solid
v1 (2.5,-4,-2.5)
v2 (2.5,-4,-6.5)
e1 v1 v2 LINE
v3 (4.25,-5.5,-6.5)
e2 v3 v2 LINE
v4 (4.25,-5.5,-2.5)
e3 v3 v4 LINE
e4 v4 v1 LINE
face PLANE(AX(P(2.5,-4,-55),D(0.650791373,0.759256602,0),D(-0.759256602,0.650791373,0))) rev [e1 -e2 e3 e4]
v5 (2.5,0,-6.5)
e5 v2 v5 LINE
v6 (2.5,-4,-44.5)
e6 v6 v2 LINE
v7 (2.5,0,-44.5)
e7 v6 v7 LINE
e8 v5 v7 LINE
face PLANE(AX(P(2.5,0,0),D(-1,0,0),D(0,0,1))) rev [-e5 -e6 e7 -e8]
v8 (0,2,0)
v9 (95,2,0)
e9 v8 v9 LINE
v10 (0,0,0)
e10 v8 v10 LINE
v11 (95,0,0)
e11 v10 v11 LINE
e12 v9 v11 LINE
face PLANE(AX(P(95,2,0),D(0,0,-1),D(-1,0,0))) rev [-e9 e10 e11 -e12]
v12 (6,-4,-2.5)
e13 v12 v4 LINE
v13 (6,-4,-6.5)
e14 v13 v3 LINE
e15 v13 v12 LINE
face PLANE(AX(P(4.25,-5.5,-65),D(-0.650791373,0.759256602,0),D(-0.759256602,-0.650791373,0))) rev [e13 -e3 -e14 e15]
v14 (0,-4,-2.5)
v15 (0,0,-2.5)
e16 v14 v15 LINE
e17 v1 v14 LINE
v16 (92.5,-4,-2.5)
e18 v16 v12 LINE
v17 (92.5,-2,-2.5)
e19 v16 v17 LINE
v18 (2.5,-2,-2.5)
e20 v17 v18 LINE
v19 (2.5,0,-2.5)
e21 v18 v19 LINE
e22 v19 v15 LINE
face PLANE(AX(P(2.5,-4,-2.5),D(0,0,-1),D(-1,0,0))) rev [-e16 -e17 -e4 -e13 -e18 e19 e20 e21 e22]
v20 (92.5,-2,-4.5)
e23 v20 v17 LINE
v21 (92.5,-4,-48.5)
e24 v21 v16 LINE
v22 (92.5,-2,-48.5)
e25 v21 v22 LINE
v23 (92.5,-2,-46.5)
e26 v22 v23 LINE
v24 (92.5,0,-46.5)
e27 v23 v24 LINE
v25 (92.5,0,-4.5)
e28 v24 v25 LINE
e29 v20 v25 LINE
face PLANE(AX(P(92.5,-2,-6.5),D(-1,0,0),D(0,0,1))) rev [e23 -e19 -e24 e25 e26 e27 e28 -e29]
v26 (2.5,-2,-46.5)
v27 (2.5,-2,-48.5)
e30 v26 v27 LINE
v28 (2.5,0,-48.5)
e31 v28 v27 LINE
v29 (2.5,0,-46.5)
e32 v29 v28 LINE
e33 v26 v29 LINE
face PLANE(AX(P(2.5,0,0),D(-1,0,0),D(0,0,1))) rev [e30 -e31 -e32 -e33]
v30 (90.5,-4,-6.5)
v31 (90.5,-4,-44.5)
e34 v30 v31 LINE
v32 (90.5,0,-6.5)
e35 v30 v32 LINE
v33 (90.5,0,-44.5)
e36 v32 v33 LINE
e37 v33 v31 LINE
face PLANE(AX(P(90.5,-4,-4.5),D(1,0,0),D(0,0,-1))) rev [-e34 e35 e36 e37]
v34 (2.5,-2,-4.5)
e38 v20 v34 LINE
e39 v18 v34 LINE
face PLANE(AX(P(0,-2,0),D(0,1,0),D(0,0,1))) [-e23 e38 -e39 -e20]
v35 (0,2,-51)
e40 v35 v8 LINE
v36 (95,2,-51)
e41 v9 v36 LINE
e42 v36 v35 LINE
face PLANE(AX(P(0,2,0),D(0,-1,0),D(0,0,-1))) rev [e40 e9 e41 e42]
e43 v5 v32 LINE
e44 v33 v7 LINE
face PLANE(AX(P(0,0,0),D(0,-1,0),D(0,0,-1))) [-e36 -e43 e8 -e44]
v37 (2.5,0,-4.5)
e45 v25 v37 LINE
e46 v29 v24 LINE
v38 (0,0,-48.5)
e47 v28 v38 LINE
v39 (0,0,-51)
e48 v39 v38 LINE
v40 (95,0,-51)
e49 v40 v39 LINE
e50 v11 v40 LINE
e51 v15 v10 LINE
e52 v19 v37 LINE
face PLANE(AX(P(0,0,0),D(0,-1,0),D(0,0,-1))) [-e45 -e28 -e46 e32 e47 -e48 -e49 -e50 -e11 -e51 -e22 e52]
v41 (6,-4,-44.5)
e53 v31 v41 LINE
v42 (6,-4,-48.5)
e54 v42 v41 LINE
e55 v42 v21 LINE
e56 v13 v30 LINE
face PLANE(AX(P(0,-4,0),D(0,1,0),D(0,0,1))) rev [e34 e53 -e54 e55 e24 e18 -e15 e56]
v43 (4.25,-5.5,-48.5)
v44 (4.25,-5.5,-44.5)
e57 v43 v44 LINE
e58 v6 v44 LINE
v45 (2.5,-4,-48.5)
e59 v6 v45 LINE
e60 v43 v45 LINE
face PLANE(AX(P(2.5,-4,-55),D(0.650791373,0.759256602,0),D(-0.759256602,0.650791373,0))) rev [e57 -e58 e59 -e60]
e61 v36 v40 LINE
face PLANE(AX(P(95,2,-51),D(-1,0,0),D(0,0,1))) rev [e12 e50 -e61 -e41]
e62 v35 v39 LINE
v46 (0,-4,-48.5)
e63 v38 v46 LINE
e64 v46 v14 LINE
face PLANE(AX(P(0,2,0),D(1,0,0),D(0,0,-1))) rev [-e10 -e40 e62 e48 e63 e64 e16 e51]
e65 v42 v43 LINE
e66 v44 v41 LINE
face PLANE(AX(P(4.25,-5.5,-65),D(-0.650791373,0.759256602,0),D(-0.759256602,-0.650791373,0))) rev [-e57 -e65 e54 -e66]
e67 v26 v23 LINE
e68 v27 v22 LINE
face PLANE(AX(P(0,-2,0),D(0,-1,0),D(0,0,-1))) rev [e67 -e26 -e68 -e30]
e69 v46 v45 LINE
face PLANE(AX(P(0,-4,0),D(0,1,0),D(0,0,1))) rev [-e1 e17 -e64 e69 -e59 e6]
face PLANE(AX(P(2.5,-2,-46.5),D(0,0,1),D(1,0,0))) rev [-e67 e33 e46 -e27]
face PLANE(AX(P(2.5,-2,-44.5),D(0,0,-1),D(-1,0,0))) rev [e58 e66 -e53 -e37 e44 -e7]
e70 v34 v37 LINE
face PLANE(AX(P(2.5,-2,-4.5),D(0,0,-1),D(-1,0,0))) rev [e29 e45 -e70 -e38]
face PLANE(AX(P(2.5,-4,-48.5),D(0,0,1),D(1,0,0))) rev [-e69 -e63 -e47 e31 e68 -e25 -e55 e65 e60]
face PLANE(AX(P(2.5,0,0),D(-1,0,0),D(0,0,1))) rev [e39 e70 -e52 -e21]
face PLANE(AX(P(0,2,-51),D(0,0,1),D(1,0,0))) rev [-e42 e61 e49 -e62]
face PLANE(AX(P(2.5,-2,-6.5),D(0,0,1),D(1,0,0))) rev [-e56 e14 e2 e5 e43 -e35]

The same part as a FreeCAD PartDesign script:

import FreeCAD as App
import Part
import Sketcher
from FreeCAD import Vector

doc = App.newDocument("Part")
body = doc.addObject("PartDesign::Body", "Body")

sketch1 = body.newObject("Sketcher::SketchObject", "Sketch")
sketch1.AttachmentSupport = (doc.getObject("XZ_Plane"), [""])
sketch1.MapMode = "FlatFace"
sketch1.addGeometry([
    Part.LineSegment(Vector(0, -51, 0), Vector(0, 0, 0)),
    Part.LineSegment(Vector(0, 0, 0), Vector(95, 0, 0)),
    Part.LineSegment(Vector(95, 0, 0), Vector(95, -51, 0)),
    Part.LineSegment(Vector(95, -51, 0), Vector(0, -51, 0)),
], False)
sketch1.addConstraint([
    Sketcher.Constraint("Coincident", 0, 2, 1, 1),
    Sketcher.Constraint("Coincident", 1, 2, 2, 1),
    Sketcher.Constraint("Coincident", 2, 2, 3, 1),
    Sketcher.Constraint("Coincident", 3, 2, 0, 1),
    Sketcher.Constraint("Vertical", 0),
    Sketcher.Constraint("Horizontal", 1),
    Sketcher.Constraint("Vertical", 2),
    Sketcher.Constraint("Horizontal", 3),
    Sketcher.Constraint("Coincident", 0, 2, -1, 1),
    Sketcher.Constraint("DistanceX", 1, 1, 1, 2, 95.0),
    Sketcher.Constraint("DistanceY", 0, 1, 0, 2, 51.0),
])
pad1 = body.newObject("PartDesign::Pad", "Pad")
pad1.Profile = sketch1
pad1.Length = 2
pad1.Reversed = True

sketch2 = body.newObject("Sketcher::SketchObject", "Sketch001")
sketch2.AttachmentSupport = (doc.getObject("XZ_Plane"), [""])
sketch2.MapMode = "FlatFace"
sketch2.addGeometry([
    Part.LineSegment(Vector(92.5, -6.5, 0), Vector(92.5, -4.5, 0)),
    Part.LineSegment(Vector(92.5, -4.5, 0), Vector(2.5, -4.5, 0)),
    Part.LineSegment(Vector(2.5, -4.5, 0), Vector(2.5, -6.5, 0)),
    Part.LineSegment(Vector(2.5, -6.5, 0), Vector(92.5, -6.5, 0)),
], False)
sketch2.addConstraint([
    Sketcher.Constraint("Coincident", 0, 2, 1, 1),
    Sketcher.Constraint("Coincident", 1, 2, 2, 1),
    Sketcher.Constraint("Coincident", 2, 2, 3, 1),
    Sketcher.Constraint("Coincident", 3, 2, 0, 1),
    Sketcher.Constraint("Vertical", 0),
    Sketcher.Constraint("Horizontal", 1),
    Sketcher.Constraint("Vertical", 2),
    Sketcher.Constraint("Horizontal", 3),
    Sketcher.Constraint("DistanceX", 1, 2, 1, 1, 90.0),
    Sketcher.Constraint("DistanceY", 0, 1, 0, 2, 2.0),
    Sketcher.Constraint("DistanceX", -1, 1, 0, 2, 92.5),
    Sketcher.Constraint("DistanceY", 0, 2, -1, 1, 4.5),
])
pad2 = body.newObject("PartDesign::Pad", "Pad001")
pad2.Profile = sketch2
pad2.Length = 2

sketch3 = body.newObject("Sketcher::SketchObject", "Sketch002")
sketch3.AttachmentSupport = (doc.getObject("XZ_Plane"), [""])
sketch3.MapMode = "FlatFace"
sketch3.addGeometry([
    Part.LineSegment(Vector(2.5, -44.5, 0), Vector(2.5, -46.5, 0)),
    Part.LineSegment(Vector(2.5, -46.5, 0), Vector(92.5, -46.5, 0)),
    Part.LineSegment(Vector(92.5, -46.5, 0), Vector(92.5, -44.5, 0)),
    Part.LineSegment(Vector(92.5, -44.5, 0), Vector(2.5, -44.5, 0)),
], False)
sketch3.addConstraint([
    Sketcher.Constraint("Coincident", 0, 2, 1, 1),
    Sketcher.Constraint("Coincident", 1, 2, 2, 1),
    Sketcher.Constraint("Coincident", 2, 2, 3, 1),
    Sketcher.Constraint("Coincident", 3, 2, 0, 1),
    Sketcher.Constraint("Vertical", 0),
    Sketcher.Constraint("Horizontal", 1),
    Sketcher.Constraint("Vertical", 2),
    Sketcher.Constraint("Horizontal", 3),
    Sketcher.Constraint("DistanceX", 1, 1, 1, 2, 90.0),
    Sketcher.Constraint("DistanceY", 0, 2, 0, 1, 2.0),
    Sketcher.Constraint("DistanceX", -1, 1, 0, 2, 2.5),
    Sketcher.Constraint("DistanceY", 0, 2, -1, 1, 46.5),
])
pad3 = body.newObject("PartDesign::Pad", "Pad002")
pad3.Profile = sketch3
pad3.Length = 2

sketch4 = body.newObject("Sketcher::SketchObject", "Sketch003")
sketch4.AttachmentSupport = (doc.getObject("XZ_Plane"), [""])
sketch4.MapMode = "FlatFace"
sketch4.addGeometry([
    Part.LineSegment(Vector(90.5, -4.5, 0), Vector(90.5, -46.5, 0)),
    Part.LineSegment(Vector(90.5, -46.5, 0), Vector(92.5, -46.5, 0)),
    Part.LineSegment(Vector(92.5, -46.5, 0), Vector(92.5, -4.5, 0)),
    Part.LineSegment(Vector(92.5, -4.5, 0), Vector(90.5, -4.5, 0)),
], False)
sketch4.addConstraint([
    Sketcher.Constraint("Coincident", 0, 2, 1, 1),
    Sketcher.Constraint("Coincident", 1, 2, 2, 1),
    Sketcher.Constraint("Coincident", 2, 2, 3, 1),
    Sketcher.Constraint("Coincident", 3, 2, 0, 1),
    Sketcher.Constraint("Vertical", 0),
    Sketcher.Constraint("Horizontal", 1),
    Sketcher.Constraint("Vertical", 2),
    Sketcher.Constraint("Horizontal", 3),
    Sketcher.Constraint("DistanceX", 1, 1, 1, 2, 2.0),
    Sketcher.Constraint("DistanceY", 0, 2, 0, 1, 42.0),
    Sketcher.Constraint("DistanceX", -1, 1, 0, 2, 90.5),
    Sketcher.Constraint("DistanceY", 0, 2, -1, 1, 46.5),
])
pad4 = body.newObject("PartDesign::Pad", "Pad003")
pad4.Profile = sketch4
pad4.Length = 4

sketch5 = body.newObject("Sketcher::SketchObject", "Sketch004")
sketch5.AttachmentSupport = (doc.getObject("XZ_Plane"), [""])
sketch5.MapMode = "FlatFace"
sketch5.AttachmentOffset = App.Placement(Vector(0, 0, 2), App.Rotation())
sketch5.addGeometry([
    Part.LineSegment(Vector(92.5, -6.5, 0), Vector(92.5, -2.5, 0)),
    Part.LineSegment(Vector(92.5, -2.5, 0), Vector(2.5, -2.5, 0)),
    Part.LineSegment(Vector(2.5, -2.5, 0), Vector(2.5, -6.5, 0)),
    Part.LineSegment(Vector(2.5, -6.5, 0), Vector(92.5, -6.5, 0)),
    Part.LineSegment(Vector(92.5, -48.5, 0), Vector(92.5, -44.5, 0)),
    Part.LineSegment(Vector(92.5, -44.5, 0), Vector(2.5, -44.5, 0)),
    Part.LineSegment(Vector(2.5, -44.5, 0), Vector(2.5, -48.5, 0)),
    Part.LineSegment(Vector(2.5, -48.5, 0), Vector(92.5, -48.5, 0)),
], False)
sketch5.addConstraint([
    Sketcher.Constraint("Coincident", 0, 2, 1, 1),
    Sketcher.Constraint("Coincident", 1, 2, 2, 1),
    Sketcher.Constraint("Coincident", 2, 2, 3, 1),
    Sketcher.Constraint("Coincident", 3, 2, 0, 1),
    Sketcher.Constraint("Coincident", 4, 2, 5, 1),
    Sketcher.Constraint("Coincident", 5, 2, 6, 1),
    Sketcher.Constraint("Coincident", 6, 2, 7, 1),
    Sketcher.Constraint("Coincident", 7, 2, 4, 1),
    Sketcher.Constraint("Vertical", 0),
    Sketcher.Constraint("Horizontal", 1),
    Sketcher.Constraint("Vertical", 2),
    Sketcher.Constraint("Horizontal", 3),
    Sketcher.Constraint("Vertical", 4),
    Sketcher.Constraint("Horizontal", 5),
    Sketcher.Constraint("Vertical", 6),
    Sketcher.Constraint("Horizontal", 7),
    Sketcher.Constraint("Vertical", 3, 2, 4, 2),
    Sketcher.Constraint("Vertical", 2, 2, 5, 2),
    Sketcher.Constraint("Equal", 2, 4),
    Sketcher.Constraint("DistanceX", 1, 2, 1, 1, 90.0),
    Sketcher.Constraint("DistanceY", 0, 1, 0, 2, 4.0),
    Sketcher.Constraint("DistanceY", 4, 2, 3, 2, 38.0),
    Sketcher.Constraint("DistanceX", -1, 1, 0, 2, 92.5),
    Sketcher.Constraint("DistanceY", 0, 2, -1, 1, 2.5),
])
pad5 = body.newObject("PartDesign::Pad", "Pad004")
pad5.Profile = sketch5
pad5.Length = 2

sketch6 = body.newObject("Sketcher::SketchObject", "Sketch005")
sketch6.AttachmentSupport = (doc.getObject("YZ_Plane"), [""])
sketch6.MapMode = "FlatFace"
sketch6.addGeometry([
    Part.LineSegment(Vector(0, -48.5, 0), Vector(-4, -48.5, 0)),
    Part.LineSegment(Vector(-4, -48.5, 0), Vector(-4, -2.5, 0)),
    Part.LineSegment(Vector(-4, -2.5, 0), Vector(0, -2.5, 0)),
    Part.LineSegment(Vector(0, -2.5, 0), Vector(0, -48.5, 0)),
], False)
sketch6.addConstraint([
    Sketcher.Constraint("Coincident", 0, 2, 1, 1),
    Sketcher.Constraint("Coincident", 1, 2, 2, 1),
    Sketcher.Constraint("Coincident", 2, 2, 3, 1),
    Sketcher.Constraint("Coincident", 3, 2, 0, 1),
    Sketcher.Constraint("Horizontal", 0),
    Sketcher.Constraint("Vertical", 1),
    Sketcher.Constraint("Horizontal", 2),
    Sketcher.Constraint("Vertical", 3),
    Sketcher.Constraint("PointOnObject", 2, 2, -2),
    Sketcher.Constraint("DistanceX", 0, 2, 0, 1, 4.0),
    Sketcher.Constraint("DistanceY", 1, 1, 1, 2, 46.0),
    Sketcher.Constraint("DistanceY", 0, 2, -1, 1, 48.5),
])
pad6 = body.newObject("PartDesign::Pad", "Pad005")
pad6.Profile = sketch6
pad6.Length = 2.5

sketch7 = body.newObject("Sketcher::SketchObject", "Sketch006")
sketch7.AttachmentSupport = (doc.getObject("XZ_Plane"), [""])
sketch7.MapMode = "FlatFace"
sketch7.AttachmentOffset = App.Placement(Vector(0, 0, 4), App.Rotation())
sketch7.addGeometry([
    Part.LineSegment(Vector(2.5, -2.5, 0), Vector(2.5, -6.5, 0)),
    Part.LineSegment(Vector(2.5, -6.5, 0), Vector(6, -6.5, 0)),
    Part.LineSegment(Vector(6, -6.5, 0), Vector(6, -2.5, 0)),
    Part.LineSegment(Vector(6, -2.5, 0), Vector(2.5, -2.5, 0)),
    Part.LineSegment(Vector(2.5, -44.5, 0), Vector(2.5, -48.5, 0)),
    Part.LineSegment(Vector(2.5, -48.5, 0), Vector(6, -48.5, 0)),
    Part.LineSegment(Vector(6, -48.5, 0), Vector(6, -44.5, 0)),
    Part.LineSegment(Vector(6, -44.5, 0), Vector(2.5, -44.5, 0)),
], False)
sketch7.addConstraint([
    Sketcher.Constraint("Coincident", 0, 2, 1, 1),
    Sketcher.Constraint("Coincident", 1, 2, 2, 1),
    Sketcher.Constraint("Coincident", 2, 2, 3, 1),
    Sketcher.Constraint("Coincident", 3, 2, 0, 1),
    Sketcher.Constraint("Coincident", 4, 2, 5, 1),
    Sketcher.Constraint("Coincident", 5, 2, 6, 1),
    Sketcher.Constraint("Coincident", 6, 2, 7, 1),
    Sketcher.Constraint("Coincident", 7, 2, 4, 1),
    Sketcher.Constraint("Vertical", 0),
    Sketcher.Constraint("Horizontal", 1),
    Sketcher.Constraint("Vertical", 2),
    Sketcher.Constraint("Horizontal", 3),
    Sketcher.Constraint("Vertical", 4),
    Sketcher.Constraint("Horizontal", 5),
    Sketcher.Constraint("Vertical", 6),
    Sketcher.Constraint("Horizontal", 7),
    Sketcher.Constraint("Vertical", 3, 2, 4, 2),
    Sketcher.Constraint("Vertical", 2, 2, 5, 2),
    Sketcher.Constraint("Equal", 2, 4),
    Sketcher.Constraint("DistanceY", 0, 2, 0, 1, 4.0),
    Sketcher.Constraint("DistanceX", 1, 1, 1, 2, 3.5),
    Sketcher.Constraint("DistanceX", -1, 1, 1, 2, 6.0),
    Sketcher.Constraint("DistanceY", 4, 2, 0, 2, 42.0),
    Sketcher.Constraint("DistanceY", 0, 2, -1, 1, 6.5),
])
pad7 = body.newObject("PartDesign::Pad", "Pad006")
pad7.Profile = sketch7
pad7.Length = 1.5

sketch8 = body.newObject("Sketcher::SketchObject", "Sketch007")
sketch8.AttachmentSupport = (doc.getObject("XY_Plane"), [""])
sketch8.MapMode = "FlatFace"
sketch8.AttachmentOffset = App.Placement(Vector(0, 0, -2.5), App.Rotation())
sketch8.addGeometry([
    Part.LineSegment(Vector(4.2, -5.5, 0), Vector(2.5, -4, 0)),
    Part.LineSegment(Vector(2.5, -4, 0), Vector(2.5, -5.5, 0)),
    Part.LineSegment(Vector(2.5, -5.5, 0), Vector(4.2, -5.5, 0)),
], False)
sketch8.addConstraint([
    Sketcher.Constraint("Coincident", 0, 2, 1, 1),
    Sketcher.Constraint("Coincident", 1, 2, 2, 1),
    Sketcher.Constraint("Coincident", 2, 2, 0, 1),
    Sketcher.Constraint("Vertical", 1),
    Sketcher.Constraint("Horizontal", 2),
    Sketcher.Constraint("DistanceY", 1, 2, 1, 1, 1.5),
    Sketcher.Constraint("DistanceY", 0, 2, -1, 1, 4.0),
    Sketcher.Constraint("DistanceX", 2, 1, 2, 2, 1.75),
    Sketcher.Constraint("DistanceX", -1, 1, 0, 2, 2.5),
])
pocket1 = body.newObject("PartDesign::Pocket", "Pocket")
pocket1.Profile = sketch8
pocket1.Length = 52.5

sketch9 = body.newObject("Sketcher::SketchObject", "Sketch008")
sketch9.AttachmentSupport = (doc.getObject("XY_Plane"), [""])
sketch9.MapMode = "FlatFace"
sketch9.AttachmentOffset = App.Placement(Vector(0, 0, -2.5), App.Rotation())
sketch9.addGeometry([
    Part.LineSegment(Vector(6, -4, 0), Vector(4.2, -5.5, 0)),
    Part.LineSegment(Vector(4.2, -5.5, 0), Vector(6, -5.5, 0)),
    Part.LineSegment(Vector(6, -5.5, 0), Vector(6, -4, 0)),
], False)
sketch9.addConstraint([
    Sketcher.Constraint("Coincident", 0, 2, 1, 1),
    Sketcher.Constraint("Coincident", 1, 2, 2, 1),
    Sketcher.Constraint("Coincident", 2, 2, 0, 1),
    Sketcher.Constraint("Horizontal", 1),
    Sketcher.Constraint("Vertical", 2),
    Sketcher.Constraint("DistanceY", 2, 1, 2, 2, 1.5),
    Sketcher.Constraint("DistanceX", -1, 1, 1, 2, 6.0),
    Sketcher.Constraint("DistanceY", 2, 2, -1, 1, 4.0),
    Sketcher.Constraint("DistanceX", 1, 1, 1, 2, 1.75),
])
pocket2 = body.newObject("PartDesign::Pocket", "Pocket001")
pocket2.Profile = sketch9
pocket2.Length = 62.5

doc.recompute()
